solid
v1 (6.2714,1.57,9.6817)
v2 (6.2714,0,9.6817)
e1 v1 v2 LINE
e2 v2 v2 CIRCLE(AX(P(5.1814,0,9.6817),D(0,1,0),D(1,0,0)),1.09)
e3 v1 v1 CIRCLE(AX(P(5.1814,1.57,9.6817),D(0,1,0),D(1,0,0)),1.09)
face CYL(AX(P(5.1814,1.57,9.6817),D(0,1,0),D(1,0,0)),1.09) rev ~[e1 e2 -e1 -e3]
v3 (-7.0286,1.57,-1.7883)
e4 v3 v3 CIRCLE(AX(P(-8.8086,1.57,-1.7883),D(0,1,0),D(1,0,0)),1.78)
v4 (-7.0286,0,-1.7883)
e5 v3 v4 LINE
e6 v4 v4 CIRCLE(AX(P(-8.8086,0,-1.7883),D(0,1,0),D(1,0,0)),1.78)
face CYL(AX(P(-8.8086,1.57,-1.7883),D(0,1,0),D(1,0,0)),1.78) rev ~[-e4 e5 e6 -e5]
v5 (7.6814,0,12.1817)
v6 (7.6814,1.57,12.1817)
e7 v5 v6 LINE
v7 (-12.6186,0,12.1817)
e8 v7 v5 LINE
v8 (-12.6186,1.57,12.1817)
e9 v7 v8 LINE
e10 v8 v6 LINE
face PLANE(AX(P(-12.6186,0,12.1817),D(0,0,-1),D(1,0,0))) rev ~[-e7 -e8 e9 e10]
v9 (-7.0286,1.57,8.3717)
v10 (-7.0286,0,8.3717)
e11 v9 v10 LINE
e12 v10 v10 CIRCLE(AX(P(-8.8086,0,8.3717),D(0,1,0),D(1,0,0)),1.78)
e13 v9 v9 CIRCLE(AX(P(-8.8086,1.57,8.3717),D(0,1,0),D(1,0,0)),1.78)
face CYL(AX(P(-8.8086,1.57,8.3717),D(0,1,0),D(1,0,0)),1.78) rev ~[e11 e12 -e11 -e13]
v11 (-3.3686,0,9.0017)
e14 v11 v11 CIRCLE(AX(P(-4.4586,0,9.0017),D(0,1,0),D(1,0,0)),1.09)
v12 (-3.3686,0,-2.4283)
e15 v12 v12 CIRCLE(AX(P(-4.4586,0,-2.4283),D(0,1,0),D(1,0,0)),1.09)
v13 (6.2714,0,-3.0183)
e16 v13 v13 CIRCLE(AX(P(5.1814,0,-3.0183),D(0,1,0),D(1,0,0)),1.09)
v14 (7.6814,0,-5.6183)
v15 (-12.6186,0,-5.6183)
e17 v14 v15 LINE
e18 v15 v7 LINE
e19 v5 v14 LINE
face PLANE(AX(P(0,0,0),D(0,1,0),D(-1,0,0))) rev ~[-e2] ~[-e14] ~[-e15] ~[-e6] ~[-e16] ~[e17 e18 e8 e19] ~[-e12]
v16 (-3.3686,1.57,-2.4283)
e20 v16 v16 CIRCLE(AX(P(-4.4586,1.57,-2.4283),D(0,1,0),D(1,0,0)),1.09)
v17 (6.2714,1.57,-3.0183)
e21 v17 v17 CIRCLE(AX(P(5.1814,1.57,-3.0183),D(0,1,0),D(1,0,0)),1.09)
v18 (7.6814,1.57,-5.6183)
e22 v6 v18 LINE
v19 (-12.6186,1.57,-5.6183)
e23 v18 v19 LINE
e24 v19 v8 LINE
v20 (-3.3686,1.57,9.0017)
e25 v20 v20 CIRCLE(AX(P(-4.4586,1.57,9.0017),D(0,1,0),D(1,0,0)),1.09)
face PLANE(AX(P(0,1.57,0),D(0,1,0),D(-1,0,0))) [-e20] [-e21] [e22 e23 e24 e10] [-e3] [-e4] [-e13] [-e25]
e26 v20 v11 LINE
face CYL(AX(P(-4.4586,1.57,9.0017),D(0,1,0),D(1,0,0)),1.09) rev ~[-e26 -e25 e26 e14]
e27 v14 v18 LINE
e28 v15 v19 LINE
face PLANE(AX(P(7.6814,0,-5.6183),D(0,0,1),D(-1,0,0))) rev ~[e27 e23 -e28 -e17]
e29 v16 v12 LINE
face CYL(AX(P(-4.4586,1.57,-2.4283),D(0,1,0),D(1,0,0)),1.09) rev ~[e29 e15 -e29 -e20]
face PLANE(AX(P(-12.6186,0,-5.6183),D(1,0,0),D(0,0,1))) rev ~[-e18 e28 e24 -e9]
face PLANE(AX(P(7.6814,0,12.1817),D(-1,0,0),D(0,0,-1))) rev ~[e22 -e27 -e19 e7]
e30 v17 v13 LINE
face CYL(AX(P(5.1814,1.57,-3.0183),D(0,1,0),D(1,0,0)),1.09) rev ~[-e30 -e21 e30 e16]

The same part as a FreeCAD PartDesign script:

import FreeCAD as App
import Part
import Sketcher

V = App.Vector
Q = App.Units.Quantity

doc = App.newDocument("Part")
params = doc.addObject("Spreadsheet::Sheet", "Params")
for row, (alias, value) in enumerate([
    ("sketch1_width", "20.3 mm"),
    ("sketch1_height", "17.8 mm"),
    ("pad1_length", "1.57 mm"),
    ("sketch2_diameter", "3.56 mm"),
    ("sketch2_diameter2", "2.18 mm"),
    ("pocket1_length", "50.8 mm"),
], start=1):
    params.set(f"A{row}", alias)
    params.set(f"B{row}", "=" + value)
    params.setAlias(f"B{row}", alias)

body = doc.addObject("PartDesign::Body", "Body")

# Sketch on XZ plane
sketch1 = body.newObject("Sketcher::SketchObject", "Sketch")
sketch1.AttachmentSupport = (doc.getObject("XZ_Plane"), [""])
sketch1.MapMode = "FlatFace"
sketch1.addGeometry(Part.LineSegment(V(-12.6186, -5.6183, 0), V(-12.6186, 12.1817, 0)), False)
sketch1.addGeometry(Part.LineSegment(V(-12.6186, 12.1817, 0), V(7.6814, 12.1817, 0)), False)
sketch1.addGeometry(Part.LineSegment(V(7.6814, 12.1817, 0), V(7.6814, -5.6183, 0)), False)
sketch1.addGeometry(Part.LineSegment(V(7.6814, -5.6183, 0), V(-12.6186, -5.6183, 0)), False)
sketch1.addConstraint(Sketcher.Constraint("Coincident", 0, 2, 1, 1))
sketch1.addConstraint(Sketcher.Constraint("Coincident", 1, 2, 2, 1))
sketch1.addConstraint(Sketcher.Constraint("Coincident", 2, 2, 3, 1))
sketch1.addConstraint(Sketcher.Constraint("Coincident", 3, 2, 0, 1))
sketch1.addConstraint(Sketcher.Constraint("Vertical", 0))
sketch1.addConstraint(Sketcher.Constraint("Horizontal", 1))
sketch1.addConstraint(Sketcher.Constraint("Vertical", 2))
sketch1.addConstraint(Sketcher.Constraint("Horizontal", 3))
sketch1.addConstraint(Sketcher.Constraint("DistanceX", 1, 1, 1, 2, Q("20.3 mm")))
sketch1.addConstraint(Sketcher.Constraint("DistanceY", 0, 1, 0, 2, Q("17.8 mm")))
sketch1.addConstraint(Sketcher.Constraint("DistanceX", 0, 2, -1, 1, Q("12.6186 mm")))
sketch1.addConstraint(Sketcher.Constraint("DistanceY", -1, 1, 0, 2, Q("12.1817 mm")))
sketch1.setExpression("Constraints[8]", "Params.sketch1_width")
sketch1.setExpression("Constraints[9]", "Params.sketch1_height")
pad1 = body.newObject("PartDesign::Pad", "Pad")
pad1.Profile = sketch1
pad1.setExpression("Length", "Params.pad1_length")
pad1.Reversed = True

# Sketch on XZ plane
sketch2 = body.newObject("Sketcher::SketchObject", "Sketch001")
sketch2.AttachmentSupport = (doc.getObject("XZ_Plane"), [""])
sketch2.MapMode = "FlatFace"
sketch2.AttachmentOffset = App.Placement(V(0, 0, -1.57), App.Rotation())
sketch2.addGeometry(Part.Circle(V(-8.8086, 8.3717, 0), V(0, 0, 1), 1.78), False)
sketch2.addGeometry(Part.Circle(V(-8.8086, -1.7883, 0), V(0, 0, 1), 1.78), False)
sketch2.addGeometry(Part.Circle(V(-4.4586, 9.0017, 0), V(0, 0, 1), 1.09), False)
sketch2.addGeometry(Part.Circle(V(-4.4586, -2.4283, 0), V(0, 0, 1), 1.09), False)
sketch2.addGeometry(Part.Circle(V(5.1814, -3.0183, 0), V(0, 0, 1), 1.09), False)
sketch2.addGeometry(Part.Circle(V(5.1814, 9.6817, 0), V(0, 0, 1), 1.09), False)
sketch2.addConstraint(Sketcher.Constraint("Equal", 0, 1))
sketch2.addConstraint(Sketcher.Constraint("Equal", 2, 3))
sketch2.addConstraint(Sketcher.Constraint("Equal", 3, 4))
sketch2.addConstraint(Sketcher.Constraint("Equal", 4, 5))
sketch2.addConstraint(Sketcher.Constraint("Vertical", 0, 3, 1, 3))
sketch2.addConstraint(Sketcher.Constraint("Vertical", 2, 3, 3, 3))
sketch2.addConstraint(Sketcher.Constraint("Vertical", 4, 3, 5, 3))
sketch2.addConstraint(Sketcher.Constraint("Diameter", 0, Q("3.56 mm")))
sketch2.addConstraint(Sketcher.Constraint("Diameter", 2, Q("2.18 mm")))
sketch2.addConstraint(Sketcher.Constraint("DistanceY", 4, 3, 5, 3, Q("12.7 mm")))
sketch2.addConstraint(Sketcher.Constraint("DistanceY", 1, 3, 0, 3, Q("10.16 mm")))
sketch2.addConstraint(Sketcher.Constraint("DistanceY", 3, 3, 2, 3, Q("11.43 mm")))
sketch2.addConstraint(Sketcher.Constraint("DistanceY", 3, 3, 0, 3, Q("10.8 mm")))
sketch2.addConstraint(Sketcher.Constraint("DistanceX", 0, 3, 2, 3, Q("4.35 mm")))
sketch2.addConstraint(Sketcher.Constraint("DistanceX", 3, 3, 4, 3, Q("9.64 mm")))
sketch2.addConstraint(Sketcher.Constraint("DistanceY", 4, 3, 3, 3, Q("0.59 mm")))
sketch2.addConstraint(Sketcher.Constraint("DistanceX", 0, 3, -1, 1, Q("8.8086 mm")))
sketch2.addConstraint(Sketcher.Constraint("DistanceY", -1, 1, 0, 3, Q("8.3717 mm")))
sketch2.setExpression("Constraints[7]", "Params.sketch2_diameter")
sketch2.setExpression("Constraints[8]", "Params.sketch2_diameter2")
pocket1 = body.newObject("PartDesign::Pocket", "Pocket")
pocket1.Profile = sketch2
pocket1.setExpression("Length", "Params.pocket1_length")
pocket1.Reversed = True

doc.recompute()
